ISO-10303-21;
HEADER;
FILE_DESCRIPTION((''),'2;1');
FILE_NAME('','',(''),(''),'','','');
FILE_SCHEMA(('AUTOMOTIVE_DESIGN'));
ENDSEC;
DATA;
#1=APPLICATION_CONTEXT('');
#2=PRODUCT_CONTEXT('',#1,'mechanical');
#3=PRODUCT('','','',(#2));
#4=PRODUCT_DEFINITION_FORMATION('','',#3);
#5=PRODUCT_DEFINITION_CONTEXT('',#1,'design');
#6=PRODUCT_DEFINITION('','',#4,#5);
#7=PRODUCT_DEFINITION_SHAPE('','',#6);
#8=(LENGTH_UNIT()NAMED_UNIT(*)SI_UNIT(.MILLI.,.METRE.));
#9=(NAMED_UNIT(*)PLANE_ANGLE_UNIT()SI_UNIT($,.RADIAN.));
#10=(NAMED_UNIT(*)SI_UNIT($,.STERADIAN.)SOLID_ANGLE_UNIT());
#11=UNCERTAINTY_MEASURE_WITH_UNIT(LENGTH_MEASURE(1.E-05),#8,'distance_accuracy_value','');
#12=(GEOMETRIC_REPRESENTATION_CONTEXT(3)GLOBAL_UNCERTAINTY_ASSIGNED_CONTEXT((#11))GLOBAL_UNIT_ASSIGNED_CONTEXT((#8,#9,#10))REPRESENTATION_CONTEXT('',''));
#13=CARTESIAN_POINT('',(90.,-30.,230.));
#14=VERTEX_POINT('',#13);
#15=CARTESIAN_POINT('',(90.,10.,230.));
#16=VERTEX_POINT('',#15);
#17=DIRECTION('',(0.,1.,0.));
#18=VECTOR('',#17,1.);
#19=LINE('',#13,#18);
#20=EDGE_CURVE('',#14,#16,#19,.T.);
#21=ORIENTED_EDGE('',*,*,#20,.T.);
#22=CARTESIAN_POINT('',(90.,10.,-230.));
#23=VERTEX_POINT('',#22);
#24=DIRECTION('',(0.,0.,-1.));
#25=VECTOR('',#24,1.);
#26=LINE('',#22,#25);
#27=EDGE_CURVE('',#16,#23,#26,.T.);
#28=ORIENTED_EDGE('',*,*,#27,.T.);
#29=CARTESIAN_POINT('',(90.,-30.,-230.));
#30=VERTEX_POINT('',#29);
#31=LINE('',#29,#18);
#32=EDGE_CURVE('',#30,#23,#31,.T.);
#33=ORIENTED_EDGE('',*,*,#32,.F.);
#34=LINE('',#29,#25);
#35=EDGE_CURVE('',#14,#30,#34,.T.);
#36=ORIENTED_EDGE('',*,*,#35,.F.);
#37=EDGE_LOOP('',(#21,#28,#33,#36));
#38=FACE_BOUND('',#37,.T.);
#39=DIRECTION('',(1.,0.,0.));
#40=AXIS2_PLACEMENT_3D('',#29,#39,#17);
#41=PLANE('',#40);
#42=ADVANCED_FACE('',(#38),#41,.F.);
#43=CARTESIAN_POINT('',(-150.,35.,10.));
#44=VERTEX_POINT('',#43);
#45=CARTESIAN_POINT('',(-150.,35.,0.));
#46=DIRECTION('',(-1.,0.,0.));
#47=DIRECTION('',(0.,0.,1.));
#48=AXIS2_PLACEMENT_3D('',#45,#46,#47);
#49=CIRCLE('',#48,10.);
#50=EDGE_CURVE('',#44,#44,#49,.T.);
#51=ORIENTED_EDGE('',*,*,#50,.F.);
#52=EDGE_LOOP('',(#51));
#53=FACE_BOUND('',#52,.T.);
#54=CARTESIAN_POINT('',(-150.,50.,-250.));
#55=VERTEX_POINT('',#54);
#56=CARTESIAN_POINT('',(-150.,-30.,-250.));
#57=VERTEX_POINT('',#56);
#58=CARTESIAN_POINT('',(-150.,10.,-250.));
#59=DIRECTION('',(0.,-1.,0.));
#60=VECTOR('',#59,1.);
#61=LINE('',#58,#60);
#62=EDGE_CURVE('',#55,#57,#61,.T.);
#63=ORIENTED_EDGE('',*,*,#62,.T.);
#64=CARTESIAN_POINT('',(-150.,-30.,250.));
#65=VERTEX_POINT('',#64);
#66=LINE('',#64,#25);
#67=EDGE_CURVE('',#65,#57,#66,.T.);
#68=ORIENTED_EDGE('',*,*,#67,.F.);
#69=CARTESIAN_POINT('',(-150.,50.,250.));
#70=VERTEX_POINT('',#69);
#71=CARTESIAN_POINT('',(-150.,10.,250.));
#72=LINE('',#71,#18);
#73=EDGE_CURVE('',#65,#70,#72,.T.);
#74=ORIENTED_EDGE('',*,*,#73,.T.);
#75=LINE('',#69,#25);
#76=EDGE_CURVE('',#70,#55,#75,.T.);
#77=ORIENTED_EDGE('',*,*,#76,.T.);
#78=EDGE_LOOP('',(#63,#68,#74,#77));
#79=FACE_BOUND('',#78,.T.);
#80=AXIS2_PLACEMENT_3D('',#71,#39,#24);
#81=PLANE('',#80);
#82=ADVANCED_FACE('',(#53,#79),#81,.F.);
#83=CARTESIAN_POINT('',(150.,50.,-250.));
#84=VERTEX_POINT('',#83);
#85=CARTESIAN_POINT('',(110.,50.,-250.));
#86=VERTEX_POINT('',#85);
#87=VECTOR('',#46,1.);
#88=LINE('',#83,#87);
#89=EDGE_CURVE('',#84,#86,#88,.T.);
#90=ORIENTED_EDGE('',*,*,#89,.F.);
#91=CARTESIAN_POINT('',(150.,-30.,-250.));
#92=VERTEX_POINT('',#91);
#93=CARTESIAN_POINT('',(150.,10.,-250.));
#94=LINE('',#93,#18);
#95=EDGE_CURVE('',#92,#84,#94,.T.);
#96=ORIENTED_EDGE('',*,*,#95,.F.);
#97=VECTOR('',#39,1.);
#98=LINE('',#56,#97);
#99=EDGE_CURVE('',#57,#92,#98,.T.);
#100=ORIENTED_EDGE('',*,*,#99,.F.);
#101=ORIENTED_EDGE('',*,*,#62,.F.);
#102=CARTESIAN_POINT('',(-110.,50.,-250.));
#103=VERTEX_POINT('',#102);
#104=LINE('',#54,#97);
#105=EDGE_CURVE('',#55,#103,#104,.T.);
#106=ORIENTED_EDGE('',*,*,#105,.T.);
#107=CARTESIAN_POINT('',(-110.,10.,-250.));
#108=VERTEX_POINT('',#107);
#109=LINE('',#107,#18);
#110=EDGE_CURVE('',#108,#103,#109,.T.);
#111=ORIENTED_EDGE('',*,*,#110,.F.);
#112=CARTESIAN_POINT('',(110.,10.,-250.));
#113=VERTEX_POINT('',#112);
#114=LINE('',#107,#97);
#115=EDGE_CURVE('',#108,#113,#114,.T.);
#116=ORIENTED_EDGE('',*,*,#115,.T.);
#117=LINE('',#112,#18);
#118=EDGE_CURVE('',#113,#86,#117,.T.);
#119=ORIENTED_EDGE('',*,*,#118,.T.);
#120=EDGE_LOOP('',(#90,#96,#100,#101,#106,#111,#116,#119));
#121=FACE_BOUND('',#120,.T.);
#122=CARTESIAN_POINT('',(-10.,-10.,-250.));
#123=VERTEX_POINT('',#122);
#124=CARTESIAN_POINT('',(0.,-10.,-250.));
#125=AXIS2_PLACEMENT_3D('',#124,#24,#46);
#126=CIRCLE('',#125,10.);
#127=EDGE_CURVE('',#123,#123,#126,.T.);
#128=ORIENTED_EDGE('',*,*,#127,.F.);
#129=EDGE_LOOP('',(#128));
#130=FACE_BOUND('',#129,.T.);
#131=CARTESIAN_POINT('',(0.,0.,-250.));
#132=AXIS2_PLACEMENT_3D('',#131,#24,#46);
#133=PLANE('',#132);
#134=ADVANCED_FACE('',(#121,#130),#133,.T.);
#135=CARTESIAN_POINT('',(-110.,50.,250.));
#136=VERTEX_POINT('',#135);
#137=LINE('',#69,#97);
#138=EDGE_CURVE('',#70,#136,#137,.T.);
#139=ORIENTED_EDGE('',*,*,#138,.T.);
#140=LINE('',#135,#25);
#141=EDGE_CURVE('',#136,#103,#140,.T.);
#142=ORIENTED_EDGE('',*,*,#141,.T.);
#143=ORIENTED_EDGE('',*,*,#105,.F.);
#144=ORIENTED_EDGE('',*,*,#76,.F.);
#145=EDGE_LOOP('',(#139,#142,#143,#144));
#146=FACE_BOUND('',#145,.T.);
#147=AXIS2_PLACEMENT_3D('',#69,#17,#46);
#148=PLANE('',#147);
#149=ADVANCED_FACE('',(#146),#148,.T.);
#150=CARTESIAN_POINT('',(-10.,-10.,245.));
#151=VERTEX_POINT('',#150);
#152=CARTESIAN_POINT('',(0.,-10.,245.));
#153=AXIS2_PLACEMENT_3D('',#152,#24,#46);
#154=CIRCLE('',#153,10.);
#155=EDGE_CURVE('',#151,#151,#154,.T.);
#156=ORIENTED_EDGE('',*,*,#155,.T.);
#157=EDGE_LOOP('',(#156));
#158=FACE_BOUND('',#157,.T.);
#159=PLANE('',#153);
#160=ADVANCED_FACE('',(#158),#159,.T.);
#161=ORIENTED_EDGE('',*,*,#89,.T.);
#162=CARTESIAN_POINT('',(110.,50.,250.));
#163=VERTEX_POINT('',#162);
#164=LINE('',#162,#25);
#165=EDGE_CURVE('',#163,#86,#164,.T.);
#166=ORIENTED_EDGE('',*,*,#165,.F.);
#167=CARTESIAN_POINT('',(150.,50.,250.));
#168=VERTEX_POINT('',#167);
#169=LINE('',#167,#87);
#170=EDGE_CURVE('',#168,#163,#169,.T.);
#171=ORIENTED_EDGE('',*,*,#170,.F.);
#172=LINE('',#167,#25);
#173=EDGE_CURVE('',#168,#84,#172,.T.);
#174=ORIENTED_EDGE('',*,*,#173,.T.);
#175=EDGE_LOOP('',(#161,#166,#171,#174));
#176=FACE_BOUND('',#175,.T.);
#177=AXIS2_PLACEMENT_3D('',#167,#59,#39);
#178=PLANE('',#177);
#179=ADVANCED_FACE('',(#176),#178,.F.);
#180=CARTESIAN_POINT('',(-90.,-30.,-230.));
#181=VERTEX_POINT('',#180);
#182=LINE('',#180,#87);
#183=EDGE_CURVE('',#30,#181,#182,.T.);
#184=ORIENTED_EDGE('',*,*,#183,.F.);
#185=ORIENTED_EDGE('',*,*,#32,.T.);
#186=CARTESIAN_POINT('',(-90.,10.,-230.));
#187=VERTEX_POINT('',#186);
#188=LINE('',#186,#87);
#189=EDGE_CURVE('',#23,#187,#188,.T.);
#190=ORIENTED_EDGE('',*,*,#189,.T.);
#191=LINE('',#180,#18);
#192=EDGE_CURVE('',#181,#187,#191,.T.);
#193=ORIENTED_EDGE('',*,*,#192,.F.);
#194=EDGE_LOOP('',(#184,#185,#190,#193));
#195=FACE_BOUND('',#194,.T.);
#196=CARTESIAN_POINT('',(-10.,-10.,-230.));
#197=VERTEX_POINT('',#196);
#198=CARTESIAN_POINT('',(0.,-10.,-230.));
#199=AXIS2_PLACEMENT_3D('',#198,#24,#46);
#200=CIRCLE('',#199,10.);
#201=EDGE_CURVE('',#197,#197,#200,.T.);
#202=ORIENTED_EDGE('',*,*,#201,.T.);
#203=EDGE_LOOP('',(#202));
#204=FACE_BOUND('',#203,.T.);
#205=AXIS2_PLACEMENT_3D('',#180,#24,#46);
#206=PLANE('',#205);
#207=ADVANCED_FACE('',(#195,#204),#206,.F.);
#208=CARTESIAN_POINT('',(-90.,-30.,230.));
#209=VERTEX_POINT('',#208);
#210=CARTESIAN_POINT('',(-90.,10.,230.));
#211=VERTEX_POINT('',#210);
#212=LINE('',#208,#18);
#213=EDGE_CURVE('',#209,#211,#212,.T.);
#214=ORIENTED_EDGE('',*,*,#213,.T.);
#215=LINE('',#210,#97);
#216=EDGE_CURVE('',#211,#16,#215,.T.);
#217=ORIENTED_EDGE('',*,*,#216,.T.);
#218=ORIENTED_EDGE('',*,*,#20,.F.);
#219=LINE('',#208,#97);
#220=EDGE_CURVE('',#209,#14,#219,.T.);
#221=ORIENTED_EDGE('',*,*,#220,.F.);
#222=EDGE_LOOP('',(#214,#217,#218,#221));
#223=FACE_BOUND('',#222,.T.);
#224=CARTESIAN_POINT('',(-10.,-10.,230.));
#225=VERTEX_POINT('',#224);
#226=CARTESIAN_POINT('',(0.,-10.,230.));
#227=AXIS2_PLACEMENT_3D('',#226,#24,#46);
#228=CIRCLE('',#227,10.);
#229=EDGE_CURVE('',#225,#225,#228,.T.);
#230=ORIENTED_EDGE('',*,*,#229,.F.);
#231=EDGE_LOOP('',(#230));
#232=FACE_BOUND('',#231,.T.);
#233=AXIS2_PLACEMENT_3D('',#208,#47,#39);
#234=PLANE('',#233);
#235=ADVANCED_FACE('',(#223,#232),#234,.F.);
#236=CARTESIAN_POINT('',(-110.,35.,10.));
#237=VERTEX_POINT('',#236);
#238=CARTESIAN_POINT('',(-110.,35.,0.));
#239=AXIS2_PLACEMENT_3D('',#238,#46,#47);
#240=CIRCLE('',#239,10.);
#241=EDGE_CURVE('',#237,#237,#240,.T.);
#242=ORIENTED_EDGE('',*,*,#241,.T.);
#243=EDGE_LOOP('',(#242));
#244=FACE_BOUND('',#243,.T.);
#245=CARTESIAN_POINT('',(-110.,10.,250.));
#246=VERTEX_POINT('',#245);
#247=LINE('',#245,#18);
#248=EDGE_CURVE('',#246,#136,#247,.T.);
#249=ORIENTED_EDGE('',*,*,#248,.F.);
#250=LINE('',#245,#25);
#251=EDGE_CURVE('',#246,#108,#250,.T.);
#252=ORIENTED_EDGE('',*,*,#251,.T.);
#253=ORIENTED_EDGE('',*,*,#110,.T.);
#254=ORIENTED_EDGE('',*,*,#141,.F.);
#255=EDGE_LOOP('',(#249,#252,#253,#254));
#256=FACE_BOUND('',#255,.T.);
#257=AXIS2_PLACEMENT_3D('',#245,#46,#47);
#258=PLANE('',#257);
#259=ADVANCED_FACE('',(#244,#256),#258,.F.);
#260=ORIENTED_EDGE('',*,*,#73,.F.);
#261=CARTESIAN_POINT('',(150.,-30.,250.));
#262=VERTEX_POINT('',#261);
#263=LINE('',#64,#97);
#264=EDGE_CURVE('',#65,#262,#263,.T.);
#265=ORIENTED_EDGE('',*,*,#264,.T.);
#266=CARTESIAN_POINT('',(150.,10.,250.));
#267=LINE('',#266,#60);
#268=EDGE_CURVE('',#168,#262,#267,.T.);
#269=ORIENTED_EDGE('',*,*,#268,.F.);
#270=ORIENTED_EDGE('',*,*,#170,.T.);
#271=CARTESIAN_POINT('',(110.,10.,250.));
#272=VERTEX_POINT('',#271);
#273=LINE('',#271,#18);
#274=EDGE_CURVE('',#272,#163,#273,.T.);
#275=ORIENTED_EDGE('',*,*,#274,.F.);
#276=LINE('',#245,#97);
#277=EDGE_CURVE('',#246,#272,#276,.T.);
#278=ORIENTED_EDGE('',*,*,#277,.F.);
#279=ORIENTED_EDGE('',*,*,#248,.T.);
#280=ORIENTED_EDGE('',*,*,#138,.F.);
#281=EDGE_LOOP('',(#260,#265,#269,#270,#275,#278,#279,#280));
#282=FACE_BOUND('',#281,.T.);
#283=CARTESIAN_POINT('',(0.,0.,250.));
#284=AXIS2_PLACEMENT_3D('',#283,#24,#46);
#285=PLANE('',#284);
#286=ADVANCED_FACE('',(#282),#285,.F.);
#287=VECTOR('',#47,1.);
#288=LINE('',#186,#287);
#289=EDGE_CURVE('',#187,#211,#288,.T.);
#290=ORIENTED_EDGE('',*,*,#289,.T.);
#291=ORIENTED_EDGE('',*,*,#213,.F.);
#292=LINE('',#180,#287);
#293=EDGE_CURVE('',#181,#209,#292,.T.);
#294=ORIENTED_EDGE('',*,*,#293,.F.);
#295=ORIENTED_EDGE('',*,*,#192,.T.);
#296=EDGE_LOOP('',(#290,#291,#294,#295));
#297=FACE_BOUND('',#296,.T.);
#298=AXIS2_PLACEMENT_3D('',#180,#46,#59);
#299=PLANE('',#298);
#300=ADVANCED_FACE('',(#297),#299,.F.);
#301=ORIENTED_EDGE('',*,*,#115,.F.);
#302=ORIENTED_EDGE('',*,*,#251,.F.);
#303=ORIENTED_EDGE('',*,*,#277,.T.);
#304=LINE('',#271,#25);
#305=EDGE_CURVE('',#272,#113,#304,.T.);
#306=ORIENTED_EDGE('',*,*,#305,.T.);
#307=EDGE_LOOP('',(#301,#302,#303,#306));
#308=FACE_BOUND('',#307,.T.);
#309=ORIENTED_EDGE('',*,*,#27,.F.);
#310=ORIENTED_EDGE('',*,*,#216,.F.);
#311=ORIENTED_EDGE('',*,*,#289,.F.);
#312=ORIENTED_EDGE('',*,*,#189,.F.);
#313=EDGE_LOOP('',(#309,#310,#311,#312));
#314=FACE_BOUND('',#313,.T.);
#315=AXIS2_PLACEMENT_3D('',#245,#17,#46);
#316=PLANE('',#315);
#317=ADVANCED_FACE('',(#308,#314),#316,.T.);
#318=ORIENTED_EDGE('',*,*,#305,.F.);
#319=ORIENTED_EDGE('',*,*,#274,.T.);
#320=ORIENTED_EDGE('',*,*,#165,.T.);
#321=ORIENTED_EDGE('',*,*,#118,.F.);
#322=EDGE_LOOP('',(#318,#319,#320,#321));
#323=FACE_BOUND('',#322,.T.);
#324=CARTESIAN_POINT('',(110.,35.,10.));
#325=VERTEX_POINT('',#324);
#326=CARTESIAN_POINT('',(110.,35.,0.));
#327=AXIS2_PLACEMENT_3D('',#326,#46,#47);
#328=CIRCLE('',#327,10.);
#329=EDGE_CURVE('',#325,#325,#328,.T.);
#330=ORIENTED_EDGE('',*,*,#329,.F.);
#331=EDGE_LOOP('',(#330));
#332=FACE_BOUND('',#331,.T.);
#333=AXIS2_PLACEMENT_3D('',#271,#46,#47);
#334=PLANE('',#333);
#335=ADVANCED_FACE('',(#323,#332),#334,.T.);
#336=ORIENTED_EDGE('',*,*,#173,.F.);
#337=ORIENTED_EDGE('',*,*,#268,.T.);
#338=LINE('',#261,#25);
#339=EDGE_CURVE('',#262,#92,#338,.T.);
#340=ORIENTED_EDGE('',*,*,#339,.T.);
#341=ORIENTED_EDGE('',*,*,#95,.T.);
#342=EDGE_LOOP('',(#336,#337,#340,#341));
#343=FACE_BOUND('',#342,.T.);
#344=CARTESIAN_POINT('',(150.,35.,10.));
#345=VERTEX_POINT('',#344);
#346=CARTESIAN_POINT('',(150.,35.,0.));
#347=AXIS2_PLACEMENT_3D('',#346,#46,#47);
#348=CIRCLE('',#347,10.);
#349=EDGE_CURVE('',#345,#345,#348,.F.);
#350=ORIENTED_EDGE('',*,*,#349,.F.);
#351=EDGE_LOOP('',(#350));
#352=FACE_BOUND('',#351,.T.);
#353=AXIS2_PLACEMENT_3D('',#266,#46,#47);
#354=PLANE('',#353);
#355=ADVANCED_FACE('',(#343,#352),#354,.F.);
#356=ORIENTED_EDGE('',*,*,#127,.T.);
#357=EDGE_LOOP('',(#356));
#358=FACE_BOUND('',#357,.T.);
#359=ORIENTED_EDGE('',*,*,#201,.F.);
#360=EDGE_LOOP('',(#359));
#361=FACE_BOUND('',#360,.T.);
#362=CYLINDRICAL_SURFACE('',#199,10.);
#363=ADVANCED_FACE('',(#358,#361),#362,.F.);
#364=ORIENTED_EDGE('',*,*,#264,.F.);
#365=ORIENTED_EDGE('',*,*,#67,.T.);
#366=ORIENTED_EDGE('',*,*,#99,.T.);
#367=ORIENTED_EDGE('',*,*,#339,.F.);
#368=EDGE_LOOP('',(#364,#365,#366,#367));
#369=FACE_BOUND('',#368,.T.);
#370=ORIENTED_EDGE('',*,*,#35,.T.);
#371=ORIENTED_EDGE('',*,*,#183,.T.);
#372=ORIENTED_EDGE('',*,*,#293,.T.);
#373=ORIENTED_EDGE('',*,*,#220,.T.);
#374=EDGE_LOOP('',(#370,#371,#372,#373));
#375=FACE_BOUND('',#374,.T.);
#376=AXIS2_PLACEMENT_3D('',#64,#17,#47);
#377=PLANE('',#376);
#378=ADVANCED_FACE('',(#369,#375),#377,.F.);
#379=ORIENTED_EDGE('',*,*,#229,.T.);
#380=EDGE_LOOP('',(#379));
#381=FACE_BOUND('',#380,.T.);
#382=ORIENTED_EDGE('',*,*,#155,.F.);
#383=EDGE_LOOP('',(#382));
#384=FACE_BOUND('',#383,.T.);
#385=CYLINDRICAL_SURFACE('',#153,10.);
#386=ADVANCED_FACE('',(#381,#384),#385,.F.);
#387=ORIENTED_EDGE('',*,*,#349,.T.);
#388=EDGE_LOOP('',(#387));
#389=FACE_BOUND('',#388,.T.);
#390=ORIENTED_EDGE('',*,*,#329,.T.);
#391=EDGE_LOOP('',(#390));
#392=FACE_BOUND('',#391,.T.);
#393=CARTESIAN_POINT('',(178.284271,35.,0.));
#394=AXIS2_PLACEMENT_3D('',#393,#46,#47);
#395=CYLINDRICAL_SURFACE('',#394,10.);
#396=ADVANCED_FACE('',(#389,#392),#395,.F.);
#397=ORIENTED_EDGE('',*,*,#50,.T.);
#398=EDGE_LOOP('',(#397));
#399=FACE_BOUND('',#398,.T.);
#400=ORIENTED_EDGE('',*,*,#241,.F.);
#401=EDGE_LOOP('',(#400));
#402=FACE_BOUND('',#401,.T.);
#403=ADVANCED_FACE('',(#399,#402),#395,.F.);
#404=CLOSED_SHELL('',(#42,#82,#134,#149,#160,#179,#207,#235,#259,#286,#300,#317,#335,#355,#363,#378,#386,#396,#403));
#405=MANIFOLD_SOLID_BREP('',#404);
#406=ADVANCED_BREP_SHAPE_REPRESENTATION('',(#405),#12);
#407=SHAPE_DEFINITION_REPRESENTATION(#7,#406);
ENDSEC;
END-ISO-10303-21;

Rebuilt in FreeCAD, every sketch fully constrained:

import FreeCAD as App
import Part
import Sketcher

V = App.Vector

doc = App.newDocument("Part")
body = doc.addObject("PartDesign::Body", "Body")

sketch1 = doc.addObject("Sketcher::SketchObject", "Sketch")
body.addObject(sketch1)
sketch1.AttachmentSupport = (doc.XY_Plane, [""])
sketch1.MapMode = "FlatFace"
sketch1.addGeometry([
    Part.LineSegment(V(110, 10, 0), V(-110, 10, 0)),
    Part.LineSegment(V(-110, 10, 0), V(-110, 50, 0)),
    Part.LineSegment(V(-110, 50, 0), V(-150, 50, 0)),
    Part.LineSegment(V(-150, 50, 0), V(-150, -30, 0)),
    Part.LineSegment(V(-150, -30, 0), V(150, -30, 0)),
    Part.LineSegment(V(150, -30, 0), V(150, 50, 0)),
    Part.LineSegment(V(150, 50, 0), V(110, 50, 0)),
    Part.LineSegment(V(110, 50, 0), V(110, 10, 0)),
], False)
sketch1.addConstraint([
    Sketcher.Constraint("Coincident", 0, 2, 1, 1),
    Sketcher.Constraint("Coincident", 1, 2, 2, 1),
    Sketcher.Constraint("Coincident", 2, 2, 3, 1),
    Sketcher.Constraint("Coincident", 3, 2, 4, 1),
    Sketcher.Constraint("Coincident", 4, 2, 5, 1),
    Sketcher.Constraint("Coincident", 5, 2, 6, 1),
    Sketcher.Constraint("Coincident", 6, 2, 7, 1),
    Sketcher.Constraint("Coincident", 7, 2, 0, 1),
    Sketcher.Constraint("Horizontal", 0),
    Sketcher.Constraint("Vertical", 1),
    Sketcher.Constraint("Horizontal", 2),
    Sketcher.Constraint("Vertical", 3),
    Sketcher.Constraint("Horizontal", 4),
    Sketcher.Constraint("Vertical", 5),
    Sketcher.Constraint("Horizontal", 6),
    Sketcher.Constraint("Vertical", 7),
    Sketcher.Constraint("Symmetric", 2, 2, 5, 2, -2),
    Sketcher.Constraint("Equal", 2, 6),
    Sketcher.Constraint("Equal", 6, 1),
    Sketcher.Constraint("DistanceX", 0, 2, 0, 1, 220.0),
    Sketcher.Constraint("DistanceX", 2, 2, 2, 1, 40.0),
    Sketcher.Constraint("DistanceY", 3, 2, 3, 1, 80.0),
    Sketcher.Constraint("DistanceY", -1, 1, 0, 2, 10.0),
])
pad1 = doc.addObject("PartDesign::Pad", "Pad")
body.addObject(pad1)
pad1.Profile = sketch1
pad1.Length = 500
pad1.Midplane = True

sketch2 = doc.addObject("Sketcher::SketchObject", "Sketch001")
body.addObject(sketch2)
sketch2.AttachmentSupport = (doc.XZ_Plane, [""])
sketch2.MapMode = "FlatFace"
sketch2.AttachmentOffset = App.Placement(V(0, 0, -10), App.Rotation())
sketch2.addGeometry([
    Part.LineSegment(V(-90, -230, 0), V(-90, 230, 0)),
    Part.LineSegment(V(-90, 230, 0), V(90, 230, 0)),
    Part.LineSegment(V(90, 230, 0), V(90, -230, 0)),
    Part.LineSegment(V(90, -230, 0), V(-90, -230, 0)),
], False)
sketch2.addConstraint([
    Sketcher.Constraint("Coincident", 0, 2, 1, 1),
    Sketcher.Constraint("Coincident", 1, 2, 2, 1),
    Sketcher.Constraint("Coincident", 2, 2, 3, 1),
    Sketcher.Constraint("Coincident", 3, 2, 0, 1),
    Sketcher.Constraint("Vertical", 0),
    Sketcher.Constraint("Horizontal", 1),
    Sketcher.Constraint("Vertical", 2),
    Sketcher.Constraint("Horizontal", 3),
    Sketcher.Constraint("Symmetric", 0, 2, 2, 2, -1, 1),
    Sketcher.Constraint("DistanceX", 1, 1, 1, 2, 180.0),
    Sketcher.Constraint("DistanceY", 0, 1, 0, 2, 460.0),
])
pocket1 = doc.addObject("PartDesign::Pocket", "Pocket")
body.addObject(pocket1)
pocket1.Profile = sketch2
pocket1.Type = "ThroughAll"
pocket1.Reversed = True

sketch3 = doc.addObject("Sketcher::SketchObject", "Sketch002")
body.addObject(sketch3)
sketch3.AttachmentSupport = (doc.XY_Plane, [""])
sketch3.MapMode = "FlatFace"
sketch3.AttachmentOffset = App.Placement(V(0, 0, 230), App.Rotation())
sketch3.addGeometry(Part.Circle(V(0, -10, 0), V(0, 0, 1), 10), False)
sketch3.addConstraint([
    Sketcher.Constraint("PointOnObject", 0, 3, -2),
    Sketcher.Constraint("Diameter", 0, 20.0),
    Sketcher.Constraint("DistanceY", 0, 3, -1, 1, 10.0),
])
pocket2 = doc.addObject("PartDesign::Pocket", "Pocket001")
body.addObject(pocket2)
pocket2.Profile = sketch3
pocket2.Length = 15
pocket2.Reversed = True

sketch4 = doc.addObject("Sketcher::SketchObject", "Sketch003")
body.addObject(sketch4)
sketch4.AttachmentSupport = (doc.XY_Plane, [""])
sketch4.MapMode = "FlatFace"
sketch4.AttachmentOffset = App.Placement(V(0, 0, -250), App.Rotation())
sketch4.addGeometry(Part.Circle(V(0, -10, 0), V(0, 0, 1), 10), False)
sketch4.addConstraint([
    Sketcher.Constraint("PointOnObject", 0, 3, -2),
    Sketcher.Constraint("Diameter", 0, 20.0),
    Sketcher.Constraint("DistanceY", 0, 3, -1, 1, 10.0),
])
pocket3 = doc.addObject("PartDesign::Pocket", "Pocket002")
body.addObject(pocket3)
pocket3.Profile = sketch4
pocket3.Length = 20
pocket3.Reversed = True

sketch5 = doc.addObject("Sketcher::SketchObject", "Sketch004")
body.addObject(sketch5)
sketch5.AttachmentSupport = (doc.YZ_Plane, [""])
sketch5.MapMode = "FlatFace"
sketch5.AttachmentOffset = App.Placement(V(0, 0, -150), App.Rotation())
sketch5.addGeometry(Part.Circle(V(35, 0, 0), V(0, 0, 1), 10), False)
sketch5.addConstraint([
    Sketcher.Constraint("PointOnObject", 0, 3, -1),
    Sketcher.Constraint("Diameter", 0, 20.0),
    Sketcher.Constraint("DistanceX", -1, 1, 0, 3, 35.0),
])
pocket4 = doc.addObject("PartDesign::Pocket", "Pocket003")
body.addObject(pocket4)
pocket4.Profile = sketch5
pocket4.Length = 300
pocket4.Reversed = True

doc.recompute()
